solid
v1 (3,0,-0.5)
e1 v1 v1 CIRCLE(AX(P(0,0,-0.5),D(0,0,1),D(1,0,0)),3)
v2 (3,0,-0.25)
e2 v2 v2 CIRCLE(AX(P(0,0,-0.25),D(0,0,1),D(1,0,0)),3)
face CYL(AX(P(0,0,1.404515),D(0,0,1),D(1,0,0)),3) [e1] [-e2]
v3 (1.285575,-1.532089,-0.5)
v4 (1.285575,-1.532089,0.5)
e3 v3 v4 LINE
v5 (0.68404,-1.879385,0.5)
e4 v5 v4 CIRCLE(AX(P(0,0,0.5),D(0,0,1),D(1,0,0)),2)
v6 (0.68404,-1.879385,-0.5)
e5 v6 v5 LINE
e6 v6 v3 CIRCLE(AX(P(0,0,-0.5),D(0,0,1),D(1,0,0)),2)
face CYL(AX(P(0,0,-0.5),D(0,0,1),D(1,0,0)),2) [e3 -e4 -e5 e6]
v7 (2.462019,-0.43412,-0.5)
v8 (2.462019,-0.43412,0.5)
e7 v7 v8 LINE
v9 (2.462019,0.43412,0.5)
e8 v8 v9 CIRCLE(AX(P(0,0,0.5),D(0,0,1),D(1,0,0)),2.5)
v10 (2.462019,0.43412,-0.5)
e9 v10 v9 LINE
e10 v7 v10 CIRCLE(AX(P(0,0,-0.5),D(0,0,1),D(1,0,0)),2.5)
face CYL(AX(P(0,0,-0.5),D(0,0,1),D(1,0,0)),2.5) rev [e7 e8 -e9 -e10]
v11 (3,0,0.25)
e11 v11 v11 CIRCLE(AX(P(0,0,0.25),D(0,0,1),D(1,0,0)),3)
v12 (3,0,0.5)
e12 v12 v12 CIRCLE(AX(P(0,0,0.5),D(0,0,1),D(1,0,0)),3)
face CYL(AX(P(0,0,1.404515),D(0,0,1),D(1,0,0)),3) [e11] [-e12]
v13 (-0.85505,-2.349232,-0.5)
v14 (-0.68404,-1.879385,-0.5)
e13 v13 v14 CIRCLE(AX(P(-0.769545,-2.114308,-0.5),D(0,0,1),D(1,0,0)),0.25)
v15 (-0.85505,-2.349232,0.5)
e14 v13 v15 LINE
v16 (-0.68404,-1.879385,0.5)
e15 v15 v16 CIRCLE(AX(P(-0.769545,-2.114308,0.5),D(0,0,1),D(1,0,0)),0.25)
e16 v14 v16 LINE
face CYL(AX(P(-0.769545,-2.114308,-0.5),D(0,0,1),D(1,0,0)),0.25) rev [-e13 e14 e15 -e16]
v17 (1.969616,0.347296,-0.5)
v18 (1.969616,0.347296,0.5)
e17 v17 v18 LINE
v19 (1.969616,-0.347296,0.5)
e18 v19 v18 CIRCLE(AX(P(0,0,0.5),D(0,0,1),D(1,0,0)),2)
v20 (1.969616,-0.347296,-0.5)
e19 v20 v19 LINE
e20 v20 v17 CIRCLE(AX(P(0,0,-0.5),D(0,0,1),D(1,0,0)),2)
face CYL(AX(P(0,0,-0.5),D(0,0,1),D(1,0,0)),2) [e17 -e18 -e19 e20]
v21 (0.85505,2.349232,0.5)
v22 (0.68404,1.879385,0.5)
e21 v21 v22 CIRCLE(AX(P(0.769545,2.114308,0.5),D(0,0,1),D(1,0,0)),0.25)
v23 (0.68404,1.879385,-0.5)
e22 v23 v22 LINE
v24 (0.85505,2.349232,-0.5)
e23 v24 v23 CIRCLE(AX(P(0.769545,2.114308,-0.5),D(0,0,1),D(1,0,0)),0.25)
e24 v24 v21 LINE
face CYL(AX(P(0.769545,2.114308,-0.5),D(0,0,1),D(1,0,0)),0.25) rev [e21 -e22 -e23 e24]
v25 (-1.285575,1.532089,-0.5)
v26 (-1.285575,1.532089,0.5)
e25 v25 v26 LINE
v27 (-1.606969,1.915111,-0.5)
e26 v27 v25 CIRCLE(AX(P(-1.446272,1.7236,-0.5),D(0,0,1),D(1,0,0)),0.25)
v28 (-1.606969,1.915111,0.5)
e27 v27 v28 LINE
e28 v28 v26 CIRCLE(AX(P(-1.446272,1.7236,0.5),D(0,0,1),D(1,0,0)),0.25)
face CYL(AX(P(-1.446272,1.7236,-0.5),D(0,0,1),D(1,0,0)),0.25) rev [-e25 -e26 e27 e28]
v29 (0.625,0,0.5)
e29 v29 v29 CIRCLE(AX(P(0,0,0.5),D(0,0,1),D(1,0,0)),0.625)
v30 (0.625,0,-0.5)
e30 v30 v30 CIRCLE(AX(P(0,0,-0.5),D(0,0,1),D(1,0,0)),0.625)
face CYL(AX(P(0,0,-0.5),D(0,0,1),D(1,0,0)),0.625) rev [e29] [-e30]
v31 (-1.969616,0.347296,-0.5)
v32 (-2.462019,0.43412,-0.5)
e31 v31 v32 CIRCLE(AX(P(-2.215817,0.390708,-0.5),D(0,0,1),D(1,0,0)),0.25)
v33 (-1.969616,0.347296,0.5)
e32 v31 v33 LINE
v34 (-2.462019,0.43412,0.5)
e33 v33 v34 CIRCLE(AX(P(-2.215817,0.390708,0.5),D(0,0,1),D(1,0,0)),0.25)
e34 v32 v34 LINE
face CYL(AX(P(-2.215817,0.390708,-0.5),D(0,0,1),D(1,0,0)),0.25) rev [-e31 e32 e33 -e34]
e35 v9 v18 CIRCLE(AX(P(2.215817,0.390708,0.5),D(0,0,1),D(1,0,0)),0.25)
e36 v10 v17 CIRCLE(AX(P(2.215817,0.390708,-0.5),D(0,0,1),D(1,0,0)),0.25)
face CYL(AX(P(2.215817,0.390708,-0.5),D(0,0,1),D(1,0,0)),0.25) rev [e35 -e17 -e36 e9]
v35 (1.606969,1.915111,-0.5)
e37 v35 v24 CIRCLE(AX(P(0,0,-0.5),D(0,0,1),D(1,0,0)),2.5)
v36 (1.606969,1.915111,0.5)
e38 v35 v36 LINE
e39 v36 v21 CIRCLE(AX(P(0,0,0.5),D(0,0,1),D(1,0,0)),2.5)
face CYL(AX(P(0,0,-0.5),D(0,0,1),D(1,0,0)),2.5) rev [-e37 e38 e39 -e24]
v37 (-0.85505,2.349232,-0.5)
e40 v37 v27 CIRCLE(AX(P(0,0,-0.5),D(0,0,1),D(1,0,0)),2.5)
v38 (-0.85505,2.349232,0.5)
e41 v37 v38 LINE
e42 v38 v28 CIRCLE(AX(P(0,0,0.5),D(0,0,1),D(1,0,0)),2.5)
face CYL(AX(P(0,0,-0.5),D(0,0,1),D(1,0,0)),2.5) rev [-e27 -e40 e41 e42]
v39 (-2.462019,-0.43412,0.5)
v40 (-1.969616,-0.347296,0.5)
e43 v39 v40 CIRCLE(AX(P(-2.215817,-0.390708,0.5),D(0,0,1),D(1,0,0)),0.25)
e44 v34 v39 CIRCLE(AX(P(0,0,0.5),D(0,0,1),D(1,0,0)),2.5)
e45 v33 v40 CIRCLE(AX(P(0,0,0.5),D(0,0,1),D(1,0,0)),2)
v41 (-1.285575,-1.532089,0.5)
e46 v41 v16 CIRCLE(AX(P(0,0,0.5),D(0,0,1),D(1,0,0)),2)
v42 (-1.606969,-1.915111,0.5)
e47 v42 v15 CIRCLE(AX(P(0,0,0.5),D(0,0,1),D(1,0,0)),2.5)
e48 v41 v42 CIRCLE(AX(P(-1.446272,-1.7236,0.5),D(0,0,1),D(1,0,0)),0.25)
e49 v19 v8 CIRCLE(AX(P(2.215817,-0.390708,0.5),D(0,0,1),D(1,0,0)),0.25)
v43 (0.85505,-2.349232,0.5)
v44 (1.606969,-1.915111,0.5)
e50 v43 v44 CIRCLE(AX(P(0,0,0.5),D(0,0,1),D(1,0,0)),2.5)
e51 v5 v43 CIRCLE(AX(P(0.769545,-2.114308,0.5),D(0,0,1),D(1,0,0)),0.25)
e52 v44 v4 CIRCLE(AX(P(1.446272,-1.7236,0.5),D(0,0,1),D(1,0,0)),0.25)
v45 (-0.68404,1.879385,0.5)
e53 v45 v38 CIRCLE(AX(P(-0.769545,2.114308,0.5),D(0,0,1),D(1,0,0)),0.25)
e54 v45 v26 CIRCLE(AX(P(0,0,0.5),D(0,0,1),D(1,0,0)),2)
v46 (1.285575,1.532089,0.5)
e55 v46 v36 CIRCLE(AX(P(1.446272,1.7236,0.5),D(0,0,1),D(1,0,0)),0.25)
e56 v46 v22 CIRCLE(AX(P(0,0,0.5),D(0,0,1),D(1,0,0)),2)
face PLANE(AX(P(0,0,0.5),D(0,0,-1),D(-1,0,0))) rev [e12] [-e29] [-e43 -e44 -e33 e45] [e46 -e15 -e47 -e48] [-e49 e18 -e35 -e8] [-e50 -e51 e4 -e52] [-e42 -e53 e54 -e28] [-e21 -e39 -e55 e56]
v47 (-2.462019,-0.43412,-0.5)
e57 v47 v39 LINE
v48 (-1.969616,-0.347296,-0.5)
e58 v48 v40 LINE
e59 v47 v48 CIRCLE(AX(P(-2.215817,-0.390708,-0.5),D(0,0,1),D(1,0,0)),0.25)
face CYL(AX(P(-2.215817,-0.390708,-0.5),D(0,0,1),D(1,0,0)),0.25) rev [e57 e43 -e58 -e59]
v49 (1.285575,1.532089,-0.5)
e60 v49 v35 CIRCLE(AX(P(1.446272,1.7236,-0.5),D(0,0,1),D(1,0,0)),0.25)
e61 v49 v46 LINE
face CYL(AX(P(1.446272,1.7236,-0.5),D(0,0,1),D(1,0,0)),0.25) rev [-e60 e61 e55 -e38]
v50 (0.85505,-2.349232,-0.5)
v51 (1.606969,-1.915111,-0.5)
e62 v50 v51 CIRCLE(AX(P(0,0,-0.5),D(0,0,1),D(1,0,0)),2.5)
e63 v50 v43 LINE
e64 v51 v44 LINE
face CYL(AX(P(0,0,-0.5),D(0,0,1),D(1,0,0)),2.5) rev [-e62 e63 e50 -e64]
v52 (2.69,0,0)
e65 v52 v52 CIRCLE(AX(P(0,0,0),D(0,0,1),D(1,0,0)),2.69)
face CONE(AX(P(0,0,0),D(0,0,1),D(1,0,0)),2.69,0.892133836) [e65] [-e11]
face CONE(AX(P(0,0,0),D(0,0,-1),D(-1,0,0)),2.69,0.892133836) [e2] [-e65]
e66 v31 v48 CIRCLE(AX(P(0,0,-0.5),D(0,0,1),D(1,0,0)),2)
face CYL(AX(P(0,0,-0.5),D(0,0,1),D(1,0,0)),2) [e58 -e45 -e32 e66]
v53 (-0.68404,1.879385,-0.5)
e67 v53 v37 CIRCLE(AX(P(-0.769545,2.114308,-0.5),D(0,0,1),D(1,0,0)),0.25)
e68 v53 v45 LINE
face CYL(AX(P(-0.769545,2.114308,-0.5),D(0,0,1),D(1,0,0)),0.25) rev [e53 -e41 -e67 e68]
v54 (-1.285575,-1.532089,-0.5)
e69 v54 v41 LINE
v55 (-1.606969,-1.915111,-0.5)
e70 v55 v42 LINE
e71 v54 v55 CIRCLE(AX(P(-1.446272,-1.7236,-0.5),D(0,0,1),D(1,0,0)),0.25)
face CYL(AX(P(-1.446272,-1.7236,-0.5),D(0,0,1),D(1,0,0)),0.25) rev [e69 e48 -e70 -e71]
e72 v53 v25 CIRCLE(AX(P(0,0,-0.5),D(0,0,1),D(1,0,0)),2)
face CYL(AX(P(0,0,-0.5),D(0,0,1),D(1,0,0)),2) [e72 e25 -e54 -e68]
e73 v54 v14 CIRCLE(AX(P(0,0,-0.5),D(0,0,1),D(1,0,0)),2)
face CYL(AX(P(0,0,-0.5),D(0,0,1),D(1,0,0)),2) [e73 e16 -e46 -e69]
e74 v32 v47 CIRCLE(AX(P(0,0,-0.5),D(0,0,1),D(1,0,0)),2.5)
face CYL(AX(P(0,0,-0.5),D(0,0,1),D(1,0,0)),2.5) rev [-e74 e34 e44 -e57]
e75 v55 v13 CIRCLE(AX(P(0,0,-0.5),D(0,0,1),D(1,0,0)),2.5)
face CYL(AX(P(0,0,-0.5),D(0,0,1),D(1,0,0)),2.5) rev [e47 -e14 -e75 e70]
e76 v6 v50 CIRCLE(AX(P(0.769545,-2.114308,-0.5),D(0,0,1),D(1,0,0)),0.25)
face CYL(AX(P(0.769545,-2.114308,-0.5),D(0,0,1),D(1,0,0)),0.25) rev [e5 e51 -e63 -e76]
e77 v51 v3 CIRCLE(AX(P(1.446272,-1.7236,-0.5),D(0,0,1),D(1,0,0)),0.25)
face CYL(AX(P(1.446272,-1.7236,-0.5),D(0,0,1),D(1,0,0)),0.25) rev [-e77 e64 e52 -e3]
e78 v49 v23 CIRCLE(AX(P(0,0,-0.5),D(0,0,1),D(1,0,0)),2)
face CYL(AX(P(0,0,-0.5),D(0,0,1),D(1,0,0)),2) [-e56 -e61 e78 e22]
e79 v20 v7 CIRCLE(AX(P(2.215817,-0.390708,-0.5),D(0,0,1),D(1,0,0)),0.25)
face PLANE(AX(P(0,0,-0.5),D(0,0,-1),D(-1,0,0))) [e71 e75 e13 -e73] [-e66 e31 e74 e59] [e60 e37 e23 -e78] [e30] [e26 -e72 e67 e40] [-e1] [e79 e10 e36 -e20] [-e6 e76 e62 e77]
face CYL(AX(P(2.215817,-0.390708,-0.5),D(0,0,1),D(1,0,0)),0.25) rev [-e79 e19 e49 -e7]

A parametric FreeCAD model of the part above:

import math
import FreeCAD as App
import Part
import Sketcher

V = App.Vector
Q = App.Units.Quantity

doc = App.newDocument("Part")
body = doc.addObject("PartDesign::Body", "Body")

sketch1 = body.newObject("Sketcher::SketchObject", "Sketch")
sketch1.AttachmentSupport = (doc.getObject("YZ_Plane"), [""])
sketch1.MapMode = "FlatFace"
sketch1.addGeometry(Part.LineSegment(V(3, 0.5, 0), V(0, 0.5, 0)), False)
sketch1.addGeometry(Part.LineSegment(V(0, 0.5, 0), V(0, -0.5, 0)), False)
sketch1.addGeometry(Part.LineSegment(V(0, -0.5, 0), V(3, -0.5, 0)), False)
sketch1.addGeometry(Part.LineSegment(V(3, -0.5, 0), V(3, -0.25, 0)), False)
sketch1.addGeometry(Part.LineSegment(V(3, -0.25, 0), V(2.69, 0, 0)), False)
sketch1.addGeometry(Part.LineSegment(V(2.69, 0, 0), V(3, 0.25, 0)), False)
sketch1.addGeometry(Part.LineSegment(V(3, 0.25, 0), V(3, 0.5, 0)), False)
sketch1.addConstraint(Sketcher.Constraint("Coincident", 0, 2, 1, 1))
sketch1.addConstraint(Sketcher.Constraint("Coincident", 1, 2, 2, 1))
sketch1.addConstraint(Sketcher.Constraint("Coincident", 2, 2, 3, 1))
sketch1.addConstraint(Sketcher.Constraint("Coincident", 3, 2, 4, 1))
sketch1.addConstraint(Sketcher.Constraint("Coincident", 4, 2, 5, 1))
sketch1.addConstraint(Sketcher.Constraint("Coincident", 5, 2, 6, 1))
sketch1.addConstraint(Sketcher.Constraint("Coincident", 6, 2, 0, 1))
sketch1.addConstraint(Sketcher.Constraint("Horizontal", 0))
sketch1.addConstraint(Sketcher.Constraint("Vertical", 1))
sketch1.addConstraint(Sketcher.Constraint("Horizontal", 2))
sketch1.addConstraint(Sketcher.Constraint("Vertical", 3))
sketch1.addConstraint(Sketcher.Constraint("Vertical", 6))
sketch1.addConstraint(Sketcher.Constraint("Symmetric", 0, 2, 1, 2, -1, 1))
sketch1.addConstraint(Sketcher.Constraint("Symmetric", 3, 2, 5, 2, -1))
sketch1.addConstraint(Sketcher.Constraint("PointOnObject", 4, 2, -1))
sketch1.addConstraint(Sketcher.Constraint("DistanceX", 0, 2, 0, 1, Q("3 mm")))
sketch1.addConstraint(Sketcher.Constraint("DistanceY", 1, 2, 1, 1, Q("1 mm")))
sketch1.addConstraint(Sketcher.Constraint("DistanceY", 3, 1, 3, 2, Q("0.25 mm")))
sketch1.addConstraint(Sketcher.Constraint("DistanceX", -1, 1, 4, 2, Q("2.69 mm")))
revolution = body.newObject("PartDesign::Revolution", "Revolution")
revolution.Profile = sketch1
revolution.ReferenceAxis = (sketch1, ["V_Axis"])
revolution.Angle = 360

sketch2 = body.newObject("Sketcher::SketchObject", "Sketch001")
sketch2.AttachmentSupport = (doc.getObject("XY_Plane"), [""])
sketch2.MapMode = "FlatFace"
sketch2.AttachmentOffset = App.Placement(V(0, 0, 0.5), App.Rotation())
sketch2.addGeometry(Part.Circle(V(0, 0, 0), V(0, 0, 1), 0.62), False)
sketch2.addGeometry(Part.ArcOfCircle(Part.Circle(V(0, 0, 0), V(0, 0, 1), 2.5), math.radians(170), math.radians(190)), False)
sketch2.addGeometry(Part.ArcOfCircle(Part.Circle(V(-2.22, -0.39, 0), V(0, 0, 1), 0.25), math.radians(-170), math.radians(10)), False)
sketch2.addGeometry(Part.ArcOfCircle(Part.Circle(V(0, 0, 0), V(0, 0, 1), 2), math.radians(170), math.radians(190)), False)
sketch2.addGeometry(Part.ArcOfCircle(Part.Circle(V(-2.22, 0.39, 0), V(0, 0, 1), 0.25), math.radians(-10), math.radians(170)), False)
sketch2.addGeometry(Part.ArcOfCircle(Part.Circle(V(0, 0, 0), V(0, 0, 1), 2), math.radians(110), math.radians(130)), False)
sketch2.addGeometry(Part.ArcOfCircle(Part.Circle(V(-0.77, 2.11, 0), V(0, 0, 1), 0.25), math.radians(-70), math.radians(110)), False)
sketch2.addGeometry(Part.ArcOfCircle(Part.Circle(V(0, 0, 0), V(0, 0, 1), 2.5), math.radians(110), math.radians(130)), False)
sketch2.addGeometry(Part.ArcOfCircle(Part.Circle(V(-1.45, 1.72, 0), V(0, 0, 1), 0.25), math.radians(130), math.radians(310)), False)
sketch2.addGeometry(Part.ArcOfCircle(Part.Circle(V(0, 0, 0), V(0, 0, 1), 2), math.radians(50), math.radians(70)), False)
sketch2.addGeometry(Part.ArcOfCircle(Part.Circle(V(1.45, 1.72, 0), V(0, 0, 1), 0.25), math.radians(-130), math.radians(50)), False)
sketch2.addGeometry(Part.ArcOfCircle(Part.Circle(V(0, 0, 0), V(0, 0, 1), 2.5), math.radians(50), math.radians(70)), False)
sketch2.addGeometry(Part.ArcOfCircle(Part.Circle(V(0.77, 2.11, 0), V(0, 0, 1), 0.25), math.radians(70), math.radians(250)), False)
sketch2.addGeometry(Part.ArcOfCircle(Part.Circle(V(0, 0, 0), V(0, 0, 1), 2), math.radians(-10), math.radians(10)), False)
sketch2.addGeometry(Part.ArcOfCircle(Part.Circle(V(2.22, -0.39, 0), V(0, 0, 1), 0.25), math.radians(170), math.radians(350)), False)
sketch2.addGeometry(Part.ArcOfCircle(Part.Circle(V(0, 0, 0), V(0, 0, 1), 2.5), math.radians(-10), math.radians(10)), False)
sketch2.addGeometry(Part.ArcOfCircle(Part.Circle(V(2.22, 0.39, 0), V(0, 0, 1), 0.25), math.radians(10), math.radians(190)), False)
sketch2.addGeometry(Part.ArcOfCircle(Part.Circle(V(0, 0, 0), V(0, 0, 1), 2), math.radians(-70), math.radians(-50)), False)
sketch2.addGeometry(Part.ArcOfCircle(Part.Circle(V(0.77, -2.11, 0), V(0, 0, 1), 0.25), math.radians(110), math.radians(290)), False)
sketch2.addGeometry(Part.ArcOfCircle(Part.Circle(V(0, 0, 0), V(0, 0, 1), 2.5), math.radians(-70), math.radians(-50)), False)
sketch2.addGeometry(Part.ArcOfCircle(Part.Circle(V(1.45, -1.72, 0), V(0, 0, 1), 0.25), math.radians(-50), math.radians(130)), False)
sketch2.addGeometry(Part.ArcOfCircle(Part.Circle(V(0, 0, 0), V(0, 0, 1), 2), math.radians(-130), math.radians(-110)), False)
sketch2.addGeometry(Part.ArcOfCircle(Part.Circle(V(-1.45, -1.72, 0), V(0, 0, 1), 0.25), math.radians(50), math.radians(230)), False)
sketch2.addGeometry(Part.ArcOfCircle(Part.Circle(V(0, 0, 0), V(0, 0, 1), 2.5), math.radians(-130), math.radians(-110)), False)
sketch2.addGeometry(Part.ArcOfCircle(Part.Circle(V(-0.77, -2.11, 0), V(0, 0, 1), 0.25), math.radians(-110), math.radians(70)), False)
sketch2.addConstraint(Sketcher.Constraint("Tangent", 1, 2, 2, 1))
sketch2.addConstraint(Sketcher.Constraint("Tangent", 2, 2, 3, 2))
sketch2.addConstraint(Sketcher.Constraint("Tangent", 3, 1, 4, 1))
sketch2.addConstraint(Sketcher.Constraint("Tangent", 4, 2, 1, 1))
sketch2.addConstraint(Sketcher.Constraint("Tangent", 5, 1, 6, 1))
sketch2.addConstraint(Sketcher.Constraint("Tangent", 6, 2, 7, 1))
sketch2.addConstraint(Sketcher.Constraint("Tangent", 7, 2, 8, 1))
sketch2.addConstraint(Sketcher.Constraint("Tangent", 8, 2, 5, 2))
sketch2.addConstraint(Sketcher.Constraint("Tangent", 9, 1, 10, 1))
sketch2.addConstraint(Sketcher.Constraint("Tangent", 10, 2, 11, 1))
sketch2.addConstraint(Sketcher.Constraint("Tangent", 11, 2, 12, 1))
sketch2.addConstraint(Sketcher.Constraint("Tangent", 12, 2, 9, 2))
sketch2.addConstraint(Sketcher.Constraint("Tangent", 13, 1, 14, 1))
sketch2.addConstraint(Sketcher.Constraint("Tangent", 14, 2, 15, 1))
sketch2.addConstraint(Sketcher.Constraint("Tangent", 15, 2, 16, 1))
sketch2.addConstraint(Sketcher.Constraint("Tangent", 16, 2, 13, 2))
sketch2.addConstraint(Sketcher.Constraint("Tangent", 17, 1, 18, 1))
sketch2.addConstraint(Sketcher.Constraint("Tangent", 18, 2, 19, 1))
sketch2.addConstraint(Sketcher.Constraint("Tangent", 19, 2, 20, 1))
sketch2.addConstraint(Sketcher.Constraint("Tangent", 20, 2, 17, 2))
sketch2.addConstraint(Sketcher.Constraint("Tangent", 21, 1, 22, 1))
sketch2.addConstraint(Sketcher.Constraint("Tangent", 22, 2, 23, 1))
sketch2.addConstraint(Sketcher.Constraint("Tangent", 23, 2, 24, 1))
sketch2.addConstraint(Sketcher.Constraint("Tangent", 24, 2, 21, 2))
sketch2.addConstraint(Sketcher.Constraint("Coincident", 0, 3, -1, 1))
sketch2.addConstraint(Sketcher.Constraint("Coincident", 1, 3, -1, 1))
sketch2.addConstraint(Sketcher.Constraint("Coincident", 3, 3, -1, 1))
sketch2.addConstraint(Sketcher.Constraint("Coincident", 5, 3, -1, 1))
sketch2.addConstraint(Sketcher.Constraint("Coincident", 7, 3, -1, 1))
sketch2.addConstraint(Sketcher.Constraint("Coincident", 9, 3, -1, 1))
sketch2.addConstraint(Sketcher.Constraint("Coincident", 11, 3, -1, 1))
sketch2.addConstraint(Sketcher.Constraint("Coincident", 13, 3, -1, 1))
sketch2.addConstraint(Sketcher.Constraint("Coincident", 15, 3, -1, 1))
sketch2.addConstraint(Sketcher.Constraint("Coincident", 17, 3, -1, 1))
sketch2.addConstraint(Sketcher.Constraint("Coincident", 19, 3, -1, 1))
sketch2.addConstraint(Sketcher.Constraint("Coincident", 21, 3, -1, 1))
sketch2.addConstraint(Sketcher.Constraint("Coincident", 23, 3, -1, 1))
sketch2.addConstraint(Sketcher.Constraint("Equal", 3, 5))
sketch2.addConstraint(Sketcher.Constraint("Equal", 4, 6))
sketch2.addConstraint(Sketcher.Constraint("Equal", 5, 9))
sketch2.addConstraint(Sketcher.Constraint("Equal", 8, 10))
sketch2.addConstraint(Sketcher.Constraint("Equal", 9, 13))
sketch2.addConstraint(Sketcher.Constraint("Equal", 12, 14))
sketch2.addConstraint(Sketcher.Constraint("Equal", 13, 17))
sketch2.addConstraint(Sketcher.Constraint("Equal", 16, 18))
sketch2.addConstraint(Sketcher.Constraint("Equal", 17, 21))
sketch2.addConstraint(Sketcher.Constraint("Equal", 20, 22))
sketch2.addConstraint(Sketcher.Constraint("Horizontal", 8, 3, 10, 3))
sketch2.addConstraint(Sketcher.Constraint("Horizontal", 6, 3, 12, 3))
sketch2.addConstraint(Sketcher.Constraint("Horizontal", 2, 3, 14, 3))
sketch2.addConstraint(Sketcher.Constraint("Horizontal", 4, 3, 16, 3))
sketch2.addConstraint(Sketcher.Constraint("Horizontal", 20, 3, 22, 3))
sketch2.addConstraint(Sketcher.Constraint("Horizontal", 18, 3, 24, 3))
sketch2.addConstraint(Sketcher.Constraint("Vertical", 2, 3, 4, 3))
sketch2.addConstraint(Sketcher.Constraint("Vertical", 12, 3, 18, 3))
sketch2.addConstraint(Sketcher.Constraint("Vertical", 10, 3, 20, 3))
sketch2.addConstraint(Sketcher.Constraint("Radius", 3, Q("2 mm")))
sketch2.addConstraint(Sketcher.Constraint("Radius", 1, Q("2.5 mm")))
sketch2.addConstraint(Sketcher.Constraint("Diameter", 0, Q("1.25 mm")))
sketch2.addConstraint(Sketcher.Constraint("DistanceY", -1, 1, 8, 3, Q("1.7236 mm")))
sketch2.addConstraint(Sketcher.Constraint("DistanceY", 4, 3, 6, 3, Q("1.7236 mm")))
sketch2.addConstraint(Sketcher.Constraint("DistanceX", 2, 3, 2, 2, Q("0.246202 mm")))
pocket1 = body.newObject("PartDesign::Pocket", "Pocket")
pocket1.Profile = sketch2
pocket1.Type = "ThroughAll"

doc.recompute()
